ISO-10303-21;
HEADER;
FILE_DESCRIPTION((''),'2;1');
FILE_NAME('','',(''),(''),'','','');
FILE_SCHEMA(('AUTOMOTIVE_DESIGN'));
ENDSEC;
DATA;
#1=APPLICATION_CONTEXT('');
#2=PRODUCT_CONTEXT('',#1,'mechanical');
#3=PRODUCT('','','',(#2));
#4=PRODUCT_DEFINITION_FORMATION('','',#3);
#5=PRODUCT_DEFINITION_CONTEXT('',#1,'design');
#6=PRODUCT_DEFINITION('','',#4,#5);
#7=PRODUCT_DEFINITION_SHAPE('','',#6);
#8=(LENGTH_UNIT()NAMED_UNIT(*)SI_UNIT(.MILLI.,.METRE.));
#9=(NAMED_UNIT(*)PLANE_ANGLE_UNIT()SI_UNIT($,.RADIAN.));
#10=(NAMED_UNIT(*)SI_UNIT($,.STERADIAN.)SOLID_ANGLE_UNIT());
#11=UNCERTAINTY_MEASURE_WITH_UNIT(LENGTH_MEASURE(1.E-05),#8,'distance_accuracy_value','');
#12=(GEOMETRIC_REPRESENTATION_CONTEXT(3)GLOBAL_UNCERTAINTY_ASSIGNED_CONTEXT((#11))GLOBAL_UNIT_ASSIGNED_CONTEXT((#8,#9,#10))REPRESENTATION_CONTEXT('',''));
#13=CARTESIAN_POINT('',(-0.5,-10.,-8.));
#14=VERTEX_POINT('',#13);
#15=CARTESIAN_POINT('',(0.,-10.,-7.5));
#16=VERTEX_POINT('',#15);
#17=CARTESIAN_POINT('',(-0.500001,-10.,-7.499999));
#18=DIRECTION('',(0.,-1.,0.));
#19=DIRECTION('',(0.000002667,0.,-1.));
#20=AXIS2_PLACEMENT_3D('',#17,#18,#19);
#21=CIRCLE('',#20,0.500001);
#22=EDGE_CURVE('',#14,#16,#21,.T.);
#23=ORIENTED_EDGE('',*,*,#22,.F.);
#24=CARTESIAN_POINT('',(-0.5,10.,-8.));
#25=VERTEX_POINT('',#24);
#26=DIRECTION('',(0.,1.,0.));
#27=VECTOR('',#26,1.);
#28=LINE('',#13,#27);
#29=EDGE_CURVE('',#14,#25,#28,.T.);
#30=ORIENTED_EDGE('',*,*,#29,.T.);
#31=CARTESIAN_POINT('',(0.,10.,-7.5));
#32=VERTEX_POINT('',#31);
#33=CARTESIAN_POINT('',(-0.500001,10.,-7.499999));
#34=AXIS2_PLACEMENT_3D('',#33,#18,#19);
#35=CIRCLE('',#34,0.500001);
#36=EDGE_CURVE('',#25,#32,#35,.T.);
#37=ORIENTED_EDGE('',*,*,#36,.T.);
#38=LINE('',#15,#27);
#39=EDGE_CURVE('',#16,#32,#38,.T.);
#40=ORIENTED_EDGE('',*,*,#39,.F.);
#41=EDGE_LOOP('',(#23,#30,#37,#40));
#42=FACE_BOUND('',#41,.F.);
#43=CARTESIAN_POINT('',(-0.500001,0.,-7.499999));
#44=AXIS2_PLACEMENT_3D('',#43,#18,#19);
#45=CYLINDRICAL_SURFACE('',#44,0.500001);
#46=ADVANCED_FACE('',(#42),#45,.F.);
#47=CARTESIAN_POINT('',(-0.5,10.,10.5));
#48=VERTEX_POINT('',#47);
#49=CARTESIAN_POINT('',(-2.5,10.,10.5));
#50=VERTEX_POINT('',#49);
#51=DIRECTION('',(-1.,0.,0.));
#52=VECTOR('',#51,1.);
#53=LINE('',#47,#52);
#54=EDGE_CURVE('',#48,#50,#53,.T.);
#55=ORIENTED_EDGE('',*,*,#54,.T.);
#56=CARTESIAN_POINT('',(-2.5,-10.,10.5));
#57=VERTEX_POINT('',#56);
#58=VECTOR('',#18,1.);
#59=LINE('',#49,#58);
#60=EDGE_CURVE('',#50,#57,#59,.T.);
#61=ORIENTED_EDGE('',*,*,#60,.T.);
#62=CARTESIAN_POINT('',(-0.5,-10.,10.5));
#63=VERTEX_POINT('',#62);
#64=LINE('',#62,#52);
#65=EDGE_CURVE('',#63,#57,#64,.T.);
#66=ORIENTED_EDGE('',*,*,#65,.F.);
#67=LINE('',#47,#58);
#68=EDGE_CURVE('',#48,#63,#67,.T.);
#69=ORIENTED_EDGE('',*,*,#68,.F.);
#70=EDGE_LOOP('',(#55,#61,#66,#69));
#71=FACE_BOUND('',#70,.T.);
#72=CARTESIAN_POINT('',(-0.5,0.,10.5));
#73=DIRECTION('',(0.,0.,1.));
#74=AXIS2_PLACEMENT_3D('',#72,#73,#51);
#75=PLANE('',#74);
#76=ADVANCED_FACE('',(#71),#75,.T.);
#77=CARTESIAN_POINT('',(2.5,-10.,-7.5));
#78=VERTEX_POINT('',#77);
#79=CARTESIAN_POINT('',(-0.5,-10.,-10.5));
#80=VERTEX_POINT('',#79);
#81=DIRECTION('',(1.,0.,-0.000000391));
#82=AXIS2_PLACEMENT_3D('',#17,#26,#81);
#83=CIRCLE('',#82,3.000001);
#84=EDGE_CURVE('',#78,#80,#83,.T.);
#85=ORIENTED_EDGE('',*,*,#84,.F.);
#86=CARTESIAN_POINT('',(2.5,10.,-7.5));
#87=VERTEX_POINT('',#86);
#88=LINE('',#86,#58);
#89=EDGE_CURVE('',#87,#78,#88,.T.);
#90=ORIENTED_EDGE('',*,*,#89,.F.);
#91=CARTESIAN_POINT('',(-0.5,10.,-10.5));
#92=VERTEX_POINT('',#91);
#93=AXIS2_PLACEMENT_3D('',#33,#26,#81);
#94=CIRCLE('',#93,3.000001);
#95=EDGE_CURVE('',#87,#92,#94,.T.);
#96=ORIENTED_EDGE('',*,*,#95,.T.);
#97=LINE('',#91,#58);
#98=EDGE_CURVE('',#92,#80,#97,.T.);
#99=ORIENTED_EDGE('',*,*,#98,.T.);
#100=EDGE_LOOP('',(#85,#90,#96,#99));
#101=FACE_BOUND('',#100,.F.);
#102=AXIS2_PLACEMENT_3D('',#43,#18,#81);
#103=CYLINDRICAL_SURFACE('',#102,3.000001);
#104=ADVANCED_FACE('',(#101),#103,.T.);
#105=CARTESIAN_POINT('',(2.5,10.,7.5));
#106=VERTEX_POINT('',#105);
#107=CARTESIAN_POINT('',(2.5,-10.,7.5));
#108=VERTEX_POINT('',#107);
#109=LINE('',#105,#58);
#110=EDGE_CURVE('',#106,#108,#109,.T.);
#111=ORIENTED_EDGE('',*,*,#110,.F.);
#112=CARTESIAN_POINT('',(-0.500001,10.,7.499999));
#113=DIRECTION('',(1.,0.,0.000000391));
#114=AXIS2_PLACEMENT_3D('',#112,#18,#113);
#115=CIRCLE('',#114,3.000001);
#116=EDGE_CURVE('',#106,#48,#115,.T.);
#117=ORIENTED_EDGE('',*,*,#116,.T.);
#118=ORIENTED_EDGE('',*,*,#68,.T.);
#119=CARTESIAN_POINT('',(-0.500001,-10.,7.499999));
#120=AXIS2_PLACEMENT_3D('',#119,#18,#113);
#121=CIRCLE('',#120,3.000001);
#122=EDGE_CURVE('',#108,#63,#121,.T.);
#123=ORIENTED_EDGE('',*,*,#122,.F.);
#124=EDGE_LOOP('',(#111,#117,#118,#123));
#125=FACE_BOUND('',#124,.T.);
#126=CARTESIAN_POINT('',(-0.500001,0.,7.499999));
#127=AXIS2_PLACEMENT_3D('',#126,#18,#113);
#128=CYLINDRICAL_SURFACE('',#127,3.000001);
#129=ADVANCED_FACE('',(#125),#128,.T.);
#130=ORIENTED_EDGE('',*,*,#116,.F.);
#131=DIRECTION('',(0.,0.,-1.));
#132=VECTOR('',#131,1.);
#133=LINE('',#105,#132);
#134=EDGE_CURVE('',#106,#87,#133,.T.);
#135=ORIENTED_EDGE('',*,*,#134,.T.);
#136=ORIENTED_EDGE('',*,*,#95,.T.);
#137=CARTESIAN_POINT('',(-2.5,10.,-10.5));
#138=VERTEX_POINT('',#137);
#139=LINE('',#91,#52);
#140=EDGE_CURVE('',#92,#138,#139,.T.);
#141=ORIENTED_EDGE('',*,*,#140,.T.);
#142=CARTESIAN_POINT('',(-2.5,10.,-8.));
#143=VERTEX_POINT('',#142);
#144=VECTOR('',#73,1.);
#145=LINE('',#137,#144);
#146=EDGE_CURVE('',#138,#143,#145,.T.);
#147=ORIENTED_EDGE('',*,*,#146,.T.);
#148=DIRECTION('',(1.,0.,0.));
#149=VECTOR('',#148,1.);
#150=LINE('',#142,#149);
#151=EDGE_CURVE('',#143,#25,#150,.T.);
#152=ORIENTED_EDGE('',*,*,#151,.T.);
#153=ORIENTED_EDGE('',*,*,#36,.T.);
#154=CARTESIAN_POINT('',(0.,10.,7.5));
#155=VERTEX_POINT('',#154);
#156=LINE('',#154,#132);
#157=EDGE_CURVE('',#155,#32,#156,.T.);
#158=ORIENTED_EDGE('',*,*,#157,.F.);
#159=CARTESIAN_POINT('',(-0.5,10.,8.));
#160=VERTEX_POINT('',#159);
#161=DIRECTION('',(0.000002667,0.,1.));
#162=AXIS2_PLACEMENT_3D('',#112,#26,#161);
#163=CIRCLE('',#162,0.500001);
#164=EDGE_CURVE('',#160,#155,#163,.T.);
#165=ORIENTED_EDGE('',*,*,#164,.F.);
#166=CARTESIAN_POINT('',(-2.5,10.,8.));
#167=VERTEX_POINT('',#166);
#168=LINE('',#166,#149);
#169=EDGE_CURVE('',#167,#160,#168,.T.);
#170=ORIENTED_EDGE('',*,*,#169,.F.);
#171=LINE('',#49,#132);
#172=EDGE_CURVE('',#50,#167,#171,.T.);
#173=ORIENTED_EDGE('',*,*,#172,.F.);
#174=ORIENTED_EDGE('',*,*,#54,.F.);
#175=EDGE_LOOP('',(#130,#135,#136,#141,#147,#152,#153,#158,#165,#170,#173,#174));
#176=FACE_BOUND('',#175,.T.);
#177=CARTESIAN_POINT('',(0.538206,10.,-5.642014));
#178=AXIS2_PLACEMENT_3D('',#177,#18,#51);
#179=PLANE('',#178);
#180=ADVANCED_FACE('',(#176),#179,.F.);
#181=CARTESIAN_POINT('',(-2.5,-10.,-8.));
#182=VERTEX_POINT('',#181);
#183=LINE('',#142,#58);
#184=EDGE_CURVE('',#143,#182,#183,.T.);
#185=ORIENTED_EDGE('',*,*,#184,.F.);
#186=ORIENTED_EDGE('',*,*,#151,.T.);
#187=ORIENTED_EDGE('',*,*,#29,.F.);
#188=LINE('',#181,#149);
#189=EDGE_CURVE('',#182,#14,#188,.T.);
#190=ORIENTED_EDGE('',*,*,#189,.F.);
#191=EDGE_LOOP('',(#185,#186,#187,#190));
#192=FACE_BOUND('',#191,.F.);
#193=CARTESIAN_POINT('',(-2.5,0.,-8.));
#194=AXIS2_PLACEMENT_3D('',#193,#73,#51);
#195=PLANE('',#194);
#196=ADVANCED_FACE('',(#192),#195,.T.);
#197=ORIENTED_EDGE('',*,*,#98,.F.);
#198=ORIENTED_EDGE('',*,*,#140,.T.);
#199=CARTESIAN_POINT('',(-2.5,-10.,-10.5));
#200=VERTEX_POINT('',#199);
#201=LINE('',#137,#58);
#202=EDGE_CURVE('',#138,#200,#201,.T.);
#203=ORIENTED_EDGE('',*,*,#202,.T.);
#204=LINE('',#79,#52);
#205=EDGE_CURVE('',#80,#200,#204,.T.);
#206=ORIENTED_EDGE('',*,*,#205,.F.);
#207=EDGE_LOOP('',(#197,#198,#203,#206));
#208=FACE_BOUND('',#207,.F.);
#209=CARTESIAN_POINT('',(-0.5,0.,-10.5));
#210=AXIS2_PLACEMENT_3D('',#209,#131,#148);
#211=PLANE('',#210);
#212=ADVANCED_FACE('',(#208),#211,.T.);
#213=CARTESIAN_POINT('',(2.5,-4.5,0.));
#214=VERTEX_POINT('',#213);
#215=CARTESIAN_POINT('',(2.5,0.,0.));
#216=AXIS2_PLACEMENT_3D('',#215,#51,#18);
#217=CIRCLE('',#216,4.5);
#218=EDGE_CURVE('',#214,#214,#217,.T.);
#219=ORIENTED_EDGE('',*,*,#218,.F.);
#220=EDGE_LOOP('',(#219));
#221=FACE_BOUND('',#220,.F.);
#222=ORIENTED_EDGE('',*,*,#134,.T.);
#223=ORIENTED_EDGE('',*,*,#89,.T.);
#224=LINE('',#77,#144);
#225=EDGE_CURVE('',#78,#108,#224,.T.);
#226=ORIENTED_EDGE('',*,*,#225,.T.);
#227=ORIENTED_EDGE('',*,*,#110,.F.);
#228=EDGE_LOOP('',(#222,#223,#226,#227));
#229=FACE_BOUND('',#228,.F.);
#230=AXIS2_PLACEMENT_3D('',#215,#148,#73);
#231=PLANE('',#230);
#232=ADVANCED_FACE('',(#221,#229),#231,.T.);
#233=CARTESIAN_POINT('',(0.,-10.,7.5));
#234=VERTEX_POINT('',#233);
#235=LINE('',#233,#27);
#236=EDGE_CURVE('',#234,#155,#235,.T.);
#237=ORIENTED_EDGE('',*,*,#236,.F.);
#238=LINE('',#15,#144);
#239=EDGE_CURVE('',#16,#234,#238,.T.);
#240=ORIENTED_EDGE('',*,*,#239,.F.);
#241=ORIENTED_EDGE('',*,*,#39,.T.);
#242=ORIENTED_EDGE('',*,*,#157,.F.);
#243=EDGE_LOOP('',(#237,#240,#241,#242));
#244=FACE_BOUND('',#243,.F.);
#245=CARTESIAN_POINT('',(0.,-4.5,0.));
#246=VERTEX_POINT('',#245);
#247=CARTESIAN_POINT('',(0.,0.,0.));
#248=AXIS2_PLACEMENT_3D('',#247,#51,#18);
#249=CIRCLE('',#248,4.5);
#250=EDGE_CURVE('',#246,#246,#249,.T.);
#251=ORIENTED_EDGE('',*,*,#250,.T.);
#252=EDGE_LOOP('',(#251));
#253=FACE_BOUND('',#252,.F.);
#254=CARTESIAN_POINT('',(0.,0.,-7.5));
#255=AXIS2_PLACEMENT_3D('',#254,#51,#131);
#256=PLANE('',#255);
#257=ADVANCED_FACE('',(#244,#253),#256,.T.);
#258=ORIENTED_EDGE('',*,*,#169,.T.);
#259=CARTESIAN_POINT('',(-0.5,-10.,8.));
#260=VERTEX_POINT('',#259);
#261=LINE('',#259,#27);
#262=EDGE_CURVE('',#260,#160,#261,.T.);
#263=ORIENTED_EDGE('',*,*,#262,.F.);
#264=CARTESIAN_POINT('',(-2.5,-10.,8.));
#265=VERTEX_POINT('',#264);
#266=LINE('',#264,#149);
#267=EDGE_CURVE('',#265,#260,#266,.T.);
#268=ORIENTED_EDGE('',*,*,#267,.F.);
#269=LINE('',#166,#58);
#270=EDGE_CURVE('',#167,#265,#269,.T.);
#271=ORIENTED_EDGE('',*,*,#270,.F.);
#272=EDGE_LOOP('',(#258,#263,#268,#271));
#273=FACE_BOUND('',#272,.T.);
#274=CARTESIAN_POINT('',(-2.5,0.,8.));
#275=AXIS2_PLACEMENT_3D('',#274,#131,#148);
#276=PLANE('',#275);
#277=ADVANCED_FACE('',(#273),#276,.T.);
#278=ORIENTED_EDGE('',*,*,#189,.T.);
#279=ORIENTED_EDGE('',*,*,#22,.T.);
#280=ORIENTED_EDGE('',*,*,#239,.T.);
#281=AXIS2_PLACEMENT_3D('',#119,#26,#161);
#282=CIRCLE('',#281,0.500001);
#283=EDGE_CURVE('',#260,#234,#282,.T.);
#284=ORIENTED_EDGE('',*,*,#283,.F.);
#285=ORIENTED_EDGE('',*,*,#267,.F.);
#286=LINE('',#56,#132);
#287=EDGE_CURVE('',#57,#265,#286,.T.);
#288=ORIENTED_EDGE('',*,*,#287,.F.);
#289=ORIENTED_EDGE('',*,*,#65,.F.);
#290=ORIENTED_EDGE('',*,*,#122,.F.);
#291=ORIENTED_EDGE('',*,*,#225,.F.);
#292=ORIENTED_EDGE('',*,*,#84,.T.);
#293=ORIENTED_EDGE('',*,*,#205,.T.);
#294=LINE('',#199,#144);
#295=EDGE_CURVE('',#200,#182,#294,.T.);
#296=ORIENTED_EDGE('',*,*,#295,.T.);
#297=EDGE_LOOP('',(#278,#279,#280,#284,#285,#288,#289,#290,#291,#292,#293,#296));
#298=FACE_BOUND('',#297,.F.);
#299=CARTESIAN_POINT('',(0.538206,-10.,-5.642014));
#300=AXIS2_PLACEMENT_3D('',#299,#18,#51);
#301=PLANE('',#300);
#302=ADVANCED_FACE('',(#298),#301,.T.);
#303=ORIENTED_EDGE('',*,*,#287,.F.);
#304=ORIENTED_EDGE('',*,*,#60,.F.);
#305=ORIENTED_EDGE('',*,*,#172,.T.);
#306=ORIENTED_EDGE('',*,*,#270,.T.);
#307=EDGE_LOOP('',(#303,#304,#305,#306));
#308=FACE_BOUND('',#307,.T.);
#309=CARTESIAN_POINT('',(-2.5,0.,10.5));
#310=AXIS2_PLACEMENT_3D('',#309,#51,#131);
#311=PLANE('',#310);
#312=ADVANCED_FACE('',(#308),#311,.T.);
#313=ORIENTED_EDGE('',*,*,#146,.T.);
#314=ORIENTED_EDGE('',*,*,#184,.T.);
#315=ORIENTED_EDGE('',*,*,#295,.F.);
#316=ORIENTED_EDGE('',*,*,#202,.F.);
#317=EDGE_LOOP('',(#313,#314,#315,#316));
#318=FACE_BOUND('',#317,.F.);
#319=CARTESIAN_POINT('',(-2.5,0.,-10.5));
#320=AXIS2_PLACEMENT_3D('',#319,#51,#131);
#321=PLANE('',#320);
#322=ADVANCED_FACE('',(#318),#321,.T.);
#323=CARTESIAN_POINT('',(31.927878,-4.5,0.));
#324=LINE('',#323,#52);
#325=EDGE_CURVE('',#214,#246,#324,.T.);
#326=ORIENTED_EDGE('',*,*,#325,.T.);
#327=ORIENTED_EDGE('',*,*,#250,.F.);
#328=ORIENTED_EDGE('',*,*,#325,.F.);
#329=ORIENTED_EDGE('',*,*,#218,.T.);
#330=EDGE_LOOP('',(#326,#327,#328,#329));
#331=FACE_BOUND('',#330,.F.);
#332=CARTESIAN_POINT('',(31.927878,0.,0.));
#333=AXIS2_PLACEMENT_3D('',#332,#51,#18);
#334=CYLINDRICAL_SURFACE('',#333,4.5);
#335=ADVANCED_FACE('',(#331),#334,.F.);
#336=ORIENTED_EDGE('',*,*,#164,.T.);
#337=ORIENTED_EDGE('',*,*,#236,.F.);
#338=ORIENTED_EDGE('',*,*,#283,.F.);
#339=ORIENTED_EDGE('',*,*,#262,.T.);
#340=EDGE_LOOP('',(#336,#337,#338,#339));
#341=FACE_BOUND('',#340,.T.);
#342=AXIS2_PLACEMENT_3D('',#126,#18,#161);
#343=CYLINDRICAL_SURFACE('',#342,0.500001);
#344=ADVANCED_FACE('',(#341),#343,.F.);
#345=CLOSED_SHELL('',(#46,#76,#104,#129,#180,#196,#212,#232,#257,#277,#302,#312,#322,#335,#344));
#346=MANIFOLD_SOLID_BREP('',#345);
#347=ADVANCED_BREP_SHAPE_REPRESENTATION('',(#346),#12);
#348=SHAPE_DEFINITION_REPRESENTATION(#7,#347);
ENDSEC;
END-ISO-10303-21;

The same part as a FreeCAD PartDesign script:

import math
import FreeCAD as App
import Part
import Sketcher

V = App.Vector

doc = App.newDocument("Part")
body = doc.addObject("PartDesign::Body", "Body")

sketch1 = doc.addObject("Sketcher::SketchObject", "Sketch")
body.addObject(sketch1)
sketch1.AttachmentSupport = (doc.XZ_Plane, [""])
sketch1.MapMode = "FlatFace"
sketch1.addGeometry([
    Part.LineSegment(V(0, 0, 0), V(2.5, 0, 0)),
    Part.LineSegment(V(2.5, 0, 0), V(2.5, 7.5, 0)),
    Part.ArcOfCircle(Part.Circle(V(-0.5, 7.5, 0), V(0, 0, 1), 3), math.radians(0), math.radians(90)),
    Part.LineSegment(V(-0.5, 10.5, 0), V(-2.5, 10.5, 0)),
    Part.LineSegment(V(-2.5, 10.5, 0), V(-2.5, 8, 0)),
    Part.LineSegment(V(-2.5, 8, 0), V(-0.5, 8, 0)),
    Part.ArcOfCircle(Part.Circle(V(-0.5, 7.5, 0), V(0, 0, 1), 0.5), math.radians(0), math.radians(90)),
    Part.LineSegment(V(0, 7.5, 0), V(0, 0, 0)),
], False)
sketch1.addConstraint([
    Sketcher.Constraint("Coincident", 0, 2, 1, 1),
    Sketcher.Constraint("Tangent", 1, 2, 2, 1),
    Sketcher.Constraint("Tangent", 2, 2, 3, 1),
    Sketcher.Constraint("Coincident", 3, 2, 4, 1),
    Sketcher.Constraint("Coincident", 4, 2, 5, 1),
    Sketcher.Constraint("Coincident", 5, 2, 6, 2),
    Sketcher.Constraint("Coincident", 6, 1, 7, 1),
    Sketcher.Constraint("Coincident", 7, 2, 0, 1),
    Sketcher.Constraint("Horizontal", 0),
    Sketcher.Constraint("Vertical", 1),
    Sketcher.Constraint("Horizontal", 3),
    Sketcher.Constraint("Vertical", 4),
    Sketcher.Constraint("Horizontal", 5),
    Sketcher.Constraint("Vertical", 7),
    Sketcher.Constraint("Coincident", 7, 2, -1, 1),
    Sketcher.Constraint("Coincident", 6, 3, 2, 3),
    Sketcher.Constraint("Horizontal", 1, 2, 6, 1),
    Sketcher.Constraint("Vertical", 2, 2, 5, 2),
    Sketcher.Constraint("Radius", 2, 3.000001),
    Sketcher.Constraint("Radius", 6, 0.500001),
    Sketcher.Constraint("DistanceX", 3, 2, 3, 1, 2.0),
    Sketcher.Constraint("DistanceY", 1, 1, 1, 2, 7.5),
])
pad1 = doc.addObject("PartDesign::Pad", "Pad")
body.addObject(pad1)
pad1.Profile = sketch1
pad1.Type = "TwoLengths"
pad1.Length = 10
pad1.Length2 = 10
body2 = doc.addObject("PartDesign::Body", "Body001")
doc.recompute()

body2.BaseFeature = body
doc.recompute()

mirroring = doc.addObject("Part::Mirroring", "Mirroring")
mirroring.Source = body
mirroring.Base = V(1.25, 0, 0)
mirroring.Normal = V(0, 0, -1)
body3 = doc.addObject("PartDesign::Body", "Body002")
body3.BaseFeature = mirroring
boolean = doc.addObject("PartDesign::Boolean", "Boolean")
body2.addObject(boolean)
boolean.Type = "Fuse"
boolean.addObjects([body3])
doc.recompute()

sketch2 = doc.addObject("Sketcher::SketchObject", "Sketch001")
body2.addObject(sketch2)
sketch2.AttachmentSupport = (doc.getObject("YZ_Plane001"), [""])
sketch2.MapMode = "FlatFace"
sketch2.AttachmentOffset = App.Placement(V(0, 0, 2.5), App.Rotation())
sketch2.addGeometry(Part.Circle(V(0, 0, 0), V(0, 0, 1), 4.5), False)
sketch2.addConstraint([
    Sketcher.Constraint("Coincident", 0, 3, -1, 1),
    Sketcher.Constraint("Diameter", 0, 9.0),
])
doc.recompute()
hole = doc.addObject("PartDesign::Hole", "Hole")
body2.addObject(hole)
hole.Profile = sketch2
hole.ThreadType = "None"
hole.Diameter = 9
hole.DepthType = "ThroughAll"
mirroring.Visibility = False

doc.recompute()
